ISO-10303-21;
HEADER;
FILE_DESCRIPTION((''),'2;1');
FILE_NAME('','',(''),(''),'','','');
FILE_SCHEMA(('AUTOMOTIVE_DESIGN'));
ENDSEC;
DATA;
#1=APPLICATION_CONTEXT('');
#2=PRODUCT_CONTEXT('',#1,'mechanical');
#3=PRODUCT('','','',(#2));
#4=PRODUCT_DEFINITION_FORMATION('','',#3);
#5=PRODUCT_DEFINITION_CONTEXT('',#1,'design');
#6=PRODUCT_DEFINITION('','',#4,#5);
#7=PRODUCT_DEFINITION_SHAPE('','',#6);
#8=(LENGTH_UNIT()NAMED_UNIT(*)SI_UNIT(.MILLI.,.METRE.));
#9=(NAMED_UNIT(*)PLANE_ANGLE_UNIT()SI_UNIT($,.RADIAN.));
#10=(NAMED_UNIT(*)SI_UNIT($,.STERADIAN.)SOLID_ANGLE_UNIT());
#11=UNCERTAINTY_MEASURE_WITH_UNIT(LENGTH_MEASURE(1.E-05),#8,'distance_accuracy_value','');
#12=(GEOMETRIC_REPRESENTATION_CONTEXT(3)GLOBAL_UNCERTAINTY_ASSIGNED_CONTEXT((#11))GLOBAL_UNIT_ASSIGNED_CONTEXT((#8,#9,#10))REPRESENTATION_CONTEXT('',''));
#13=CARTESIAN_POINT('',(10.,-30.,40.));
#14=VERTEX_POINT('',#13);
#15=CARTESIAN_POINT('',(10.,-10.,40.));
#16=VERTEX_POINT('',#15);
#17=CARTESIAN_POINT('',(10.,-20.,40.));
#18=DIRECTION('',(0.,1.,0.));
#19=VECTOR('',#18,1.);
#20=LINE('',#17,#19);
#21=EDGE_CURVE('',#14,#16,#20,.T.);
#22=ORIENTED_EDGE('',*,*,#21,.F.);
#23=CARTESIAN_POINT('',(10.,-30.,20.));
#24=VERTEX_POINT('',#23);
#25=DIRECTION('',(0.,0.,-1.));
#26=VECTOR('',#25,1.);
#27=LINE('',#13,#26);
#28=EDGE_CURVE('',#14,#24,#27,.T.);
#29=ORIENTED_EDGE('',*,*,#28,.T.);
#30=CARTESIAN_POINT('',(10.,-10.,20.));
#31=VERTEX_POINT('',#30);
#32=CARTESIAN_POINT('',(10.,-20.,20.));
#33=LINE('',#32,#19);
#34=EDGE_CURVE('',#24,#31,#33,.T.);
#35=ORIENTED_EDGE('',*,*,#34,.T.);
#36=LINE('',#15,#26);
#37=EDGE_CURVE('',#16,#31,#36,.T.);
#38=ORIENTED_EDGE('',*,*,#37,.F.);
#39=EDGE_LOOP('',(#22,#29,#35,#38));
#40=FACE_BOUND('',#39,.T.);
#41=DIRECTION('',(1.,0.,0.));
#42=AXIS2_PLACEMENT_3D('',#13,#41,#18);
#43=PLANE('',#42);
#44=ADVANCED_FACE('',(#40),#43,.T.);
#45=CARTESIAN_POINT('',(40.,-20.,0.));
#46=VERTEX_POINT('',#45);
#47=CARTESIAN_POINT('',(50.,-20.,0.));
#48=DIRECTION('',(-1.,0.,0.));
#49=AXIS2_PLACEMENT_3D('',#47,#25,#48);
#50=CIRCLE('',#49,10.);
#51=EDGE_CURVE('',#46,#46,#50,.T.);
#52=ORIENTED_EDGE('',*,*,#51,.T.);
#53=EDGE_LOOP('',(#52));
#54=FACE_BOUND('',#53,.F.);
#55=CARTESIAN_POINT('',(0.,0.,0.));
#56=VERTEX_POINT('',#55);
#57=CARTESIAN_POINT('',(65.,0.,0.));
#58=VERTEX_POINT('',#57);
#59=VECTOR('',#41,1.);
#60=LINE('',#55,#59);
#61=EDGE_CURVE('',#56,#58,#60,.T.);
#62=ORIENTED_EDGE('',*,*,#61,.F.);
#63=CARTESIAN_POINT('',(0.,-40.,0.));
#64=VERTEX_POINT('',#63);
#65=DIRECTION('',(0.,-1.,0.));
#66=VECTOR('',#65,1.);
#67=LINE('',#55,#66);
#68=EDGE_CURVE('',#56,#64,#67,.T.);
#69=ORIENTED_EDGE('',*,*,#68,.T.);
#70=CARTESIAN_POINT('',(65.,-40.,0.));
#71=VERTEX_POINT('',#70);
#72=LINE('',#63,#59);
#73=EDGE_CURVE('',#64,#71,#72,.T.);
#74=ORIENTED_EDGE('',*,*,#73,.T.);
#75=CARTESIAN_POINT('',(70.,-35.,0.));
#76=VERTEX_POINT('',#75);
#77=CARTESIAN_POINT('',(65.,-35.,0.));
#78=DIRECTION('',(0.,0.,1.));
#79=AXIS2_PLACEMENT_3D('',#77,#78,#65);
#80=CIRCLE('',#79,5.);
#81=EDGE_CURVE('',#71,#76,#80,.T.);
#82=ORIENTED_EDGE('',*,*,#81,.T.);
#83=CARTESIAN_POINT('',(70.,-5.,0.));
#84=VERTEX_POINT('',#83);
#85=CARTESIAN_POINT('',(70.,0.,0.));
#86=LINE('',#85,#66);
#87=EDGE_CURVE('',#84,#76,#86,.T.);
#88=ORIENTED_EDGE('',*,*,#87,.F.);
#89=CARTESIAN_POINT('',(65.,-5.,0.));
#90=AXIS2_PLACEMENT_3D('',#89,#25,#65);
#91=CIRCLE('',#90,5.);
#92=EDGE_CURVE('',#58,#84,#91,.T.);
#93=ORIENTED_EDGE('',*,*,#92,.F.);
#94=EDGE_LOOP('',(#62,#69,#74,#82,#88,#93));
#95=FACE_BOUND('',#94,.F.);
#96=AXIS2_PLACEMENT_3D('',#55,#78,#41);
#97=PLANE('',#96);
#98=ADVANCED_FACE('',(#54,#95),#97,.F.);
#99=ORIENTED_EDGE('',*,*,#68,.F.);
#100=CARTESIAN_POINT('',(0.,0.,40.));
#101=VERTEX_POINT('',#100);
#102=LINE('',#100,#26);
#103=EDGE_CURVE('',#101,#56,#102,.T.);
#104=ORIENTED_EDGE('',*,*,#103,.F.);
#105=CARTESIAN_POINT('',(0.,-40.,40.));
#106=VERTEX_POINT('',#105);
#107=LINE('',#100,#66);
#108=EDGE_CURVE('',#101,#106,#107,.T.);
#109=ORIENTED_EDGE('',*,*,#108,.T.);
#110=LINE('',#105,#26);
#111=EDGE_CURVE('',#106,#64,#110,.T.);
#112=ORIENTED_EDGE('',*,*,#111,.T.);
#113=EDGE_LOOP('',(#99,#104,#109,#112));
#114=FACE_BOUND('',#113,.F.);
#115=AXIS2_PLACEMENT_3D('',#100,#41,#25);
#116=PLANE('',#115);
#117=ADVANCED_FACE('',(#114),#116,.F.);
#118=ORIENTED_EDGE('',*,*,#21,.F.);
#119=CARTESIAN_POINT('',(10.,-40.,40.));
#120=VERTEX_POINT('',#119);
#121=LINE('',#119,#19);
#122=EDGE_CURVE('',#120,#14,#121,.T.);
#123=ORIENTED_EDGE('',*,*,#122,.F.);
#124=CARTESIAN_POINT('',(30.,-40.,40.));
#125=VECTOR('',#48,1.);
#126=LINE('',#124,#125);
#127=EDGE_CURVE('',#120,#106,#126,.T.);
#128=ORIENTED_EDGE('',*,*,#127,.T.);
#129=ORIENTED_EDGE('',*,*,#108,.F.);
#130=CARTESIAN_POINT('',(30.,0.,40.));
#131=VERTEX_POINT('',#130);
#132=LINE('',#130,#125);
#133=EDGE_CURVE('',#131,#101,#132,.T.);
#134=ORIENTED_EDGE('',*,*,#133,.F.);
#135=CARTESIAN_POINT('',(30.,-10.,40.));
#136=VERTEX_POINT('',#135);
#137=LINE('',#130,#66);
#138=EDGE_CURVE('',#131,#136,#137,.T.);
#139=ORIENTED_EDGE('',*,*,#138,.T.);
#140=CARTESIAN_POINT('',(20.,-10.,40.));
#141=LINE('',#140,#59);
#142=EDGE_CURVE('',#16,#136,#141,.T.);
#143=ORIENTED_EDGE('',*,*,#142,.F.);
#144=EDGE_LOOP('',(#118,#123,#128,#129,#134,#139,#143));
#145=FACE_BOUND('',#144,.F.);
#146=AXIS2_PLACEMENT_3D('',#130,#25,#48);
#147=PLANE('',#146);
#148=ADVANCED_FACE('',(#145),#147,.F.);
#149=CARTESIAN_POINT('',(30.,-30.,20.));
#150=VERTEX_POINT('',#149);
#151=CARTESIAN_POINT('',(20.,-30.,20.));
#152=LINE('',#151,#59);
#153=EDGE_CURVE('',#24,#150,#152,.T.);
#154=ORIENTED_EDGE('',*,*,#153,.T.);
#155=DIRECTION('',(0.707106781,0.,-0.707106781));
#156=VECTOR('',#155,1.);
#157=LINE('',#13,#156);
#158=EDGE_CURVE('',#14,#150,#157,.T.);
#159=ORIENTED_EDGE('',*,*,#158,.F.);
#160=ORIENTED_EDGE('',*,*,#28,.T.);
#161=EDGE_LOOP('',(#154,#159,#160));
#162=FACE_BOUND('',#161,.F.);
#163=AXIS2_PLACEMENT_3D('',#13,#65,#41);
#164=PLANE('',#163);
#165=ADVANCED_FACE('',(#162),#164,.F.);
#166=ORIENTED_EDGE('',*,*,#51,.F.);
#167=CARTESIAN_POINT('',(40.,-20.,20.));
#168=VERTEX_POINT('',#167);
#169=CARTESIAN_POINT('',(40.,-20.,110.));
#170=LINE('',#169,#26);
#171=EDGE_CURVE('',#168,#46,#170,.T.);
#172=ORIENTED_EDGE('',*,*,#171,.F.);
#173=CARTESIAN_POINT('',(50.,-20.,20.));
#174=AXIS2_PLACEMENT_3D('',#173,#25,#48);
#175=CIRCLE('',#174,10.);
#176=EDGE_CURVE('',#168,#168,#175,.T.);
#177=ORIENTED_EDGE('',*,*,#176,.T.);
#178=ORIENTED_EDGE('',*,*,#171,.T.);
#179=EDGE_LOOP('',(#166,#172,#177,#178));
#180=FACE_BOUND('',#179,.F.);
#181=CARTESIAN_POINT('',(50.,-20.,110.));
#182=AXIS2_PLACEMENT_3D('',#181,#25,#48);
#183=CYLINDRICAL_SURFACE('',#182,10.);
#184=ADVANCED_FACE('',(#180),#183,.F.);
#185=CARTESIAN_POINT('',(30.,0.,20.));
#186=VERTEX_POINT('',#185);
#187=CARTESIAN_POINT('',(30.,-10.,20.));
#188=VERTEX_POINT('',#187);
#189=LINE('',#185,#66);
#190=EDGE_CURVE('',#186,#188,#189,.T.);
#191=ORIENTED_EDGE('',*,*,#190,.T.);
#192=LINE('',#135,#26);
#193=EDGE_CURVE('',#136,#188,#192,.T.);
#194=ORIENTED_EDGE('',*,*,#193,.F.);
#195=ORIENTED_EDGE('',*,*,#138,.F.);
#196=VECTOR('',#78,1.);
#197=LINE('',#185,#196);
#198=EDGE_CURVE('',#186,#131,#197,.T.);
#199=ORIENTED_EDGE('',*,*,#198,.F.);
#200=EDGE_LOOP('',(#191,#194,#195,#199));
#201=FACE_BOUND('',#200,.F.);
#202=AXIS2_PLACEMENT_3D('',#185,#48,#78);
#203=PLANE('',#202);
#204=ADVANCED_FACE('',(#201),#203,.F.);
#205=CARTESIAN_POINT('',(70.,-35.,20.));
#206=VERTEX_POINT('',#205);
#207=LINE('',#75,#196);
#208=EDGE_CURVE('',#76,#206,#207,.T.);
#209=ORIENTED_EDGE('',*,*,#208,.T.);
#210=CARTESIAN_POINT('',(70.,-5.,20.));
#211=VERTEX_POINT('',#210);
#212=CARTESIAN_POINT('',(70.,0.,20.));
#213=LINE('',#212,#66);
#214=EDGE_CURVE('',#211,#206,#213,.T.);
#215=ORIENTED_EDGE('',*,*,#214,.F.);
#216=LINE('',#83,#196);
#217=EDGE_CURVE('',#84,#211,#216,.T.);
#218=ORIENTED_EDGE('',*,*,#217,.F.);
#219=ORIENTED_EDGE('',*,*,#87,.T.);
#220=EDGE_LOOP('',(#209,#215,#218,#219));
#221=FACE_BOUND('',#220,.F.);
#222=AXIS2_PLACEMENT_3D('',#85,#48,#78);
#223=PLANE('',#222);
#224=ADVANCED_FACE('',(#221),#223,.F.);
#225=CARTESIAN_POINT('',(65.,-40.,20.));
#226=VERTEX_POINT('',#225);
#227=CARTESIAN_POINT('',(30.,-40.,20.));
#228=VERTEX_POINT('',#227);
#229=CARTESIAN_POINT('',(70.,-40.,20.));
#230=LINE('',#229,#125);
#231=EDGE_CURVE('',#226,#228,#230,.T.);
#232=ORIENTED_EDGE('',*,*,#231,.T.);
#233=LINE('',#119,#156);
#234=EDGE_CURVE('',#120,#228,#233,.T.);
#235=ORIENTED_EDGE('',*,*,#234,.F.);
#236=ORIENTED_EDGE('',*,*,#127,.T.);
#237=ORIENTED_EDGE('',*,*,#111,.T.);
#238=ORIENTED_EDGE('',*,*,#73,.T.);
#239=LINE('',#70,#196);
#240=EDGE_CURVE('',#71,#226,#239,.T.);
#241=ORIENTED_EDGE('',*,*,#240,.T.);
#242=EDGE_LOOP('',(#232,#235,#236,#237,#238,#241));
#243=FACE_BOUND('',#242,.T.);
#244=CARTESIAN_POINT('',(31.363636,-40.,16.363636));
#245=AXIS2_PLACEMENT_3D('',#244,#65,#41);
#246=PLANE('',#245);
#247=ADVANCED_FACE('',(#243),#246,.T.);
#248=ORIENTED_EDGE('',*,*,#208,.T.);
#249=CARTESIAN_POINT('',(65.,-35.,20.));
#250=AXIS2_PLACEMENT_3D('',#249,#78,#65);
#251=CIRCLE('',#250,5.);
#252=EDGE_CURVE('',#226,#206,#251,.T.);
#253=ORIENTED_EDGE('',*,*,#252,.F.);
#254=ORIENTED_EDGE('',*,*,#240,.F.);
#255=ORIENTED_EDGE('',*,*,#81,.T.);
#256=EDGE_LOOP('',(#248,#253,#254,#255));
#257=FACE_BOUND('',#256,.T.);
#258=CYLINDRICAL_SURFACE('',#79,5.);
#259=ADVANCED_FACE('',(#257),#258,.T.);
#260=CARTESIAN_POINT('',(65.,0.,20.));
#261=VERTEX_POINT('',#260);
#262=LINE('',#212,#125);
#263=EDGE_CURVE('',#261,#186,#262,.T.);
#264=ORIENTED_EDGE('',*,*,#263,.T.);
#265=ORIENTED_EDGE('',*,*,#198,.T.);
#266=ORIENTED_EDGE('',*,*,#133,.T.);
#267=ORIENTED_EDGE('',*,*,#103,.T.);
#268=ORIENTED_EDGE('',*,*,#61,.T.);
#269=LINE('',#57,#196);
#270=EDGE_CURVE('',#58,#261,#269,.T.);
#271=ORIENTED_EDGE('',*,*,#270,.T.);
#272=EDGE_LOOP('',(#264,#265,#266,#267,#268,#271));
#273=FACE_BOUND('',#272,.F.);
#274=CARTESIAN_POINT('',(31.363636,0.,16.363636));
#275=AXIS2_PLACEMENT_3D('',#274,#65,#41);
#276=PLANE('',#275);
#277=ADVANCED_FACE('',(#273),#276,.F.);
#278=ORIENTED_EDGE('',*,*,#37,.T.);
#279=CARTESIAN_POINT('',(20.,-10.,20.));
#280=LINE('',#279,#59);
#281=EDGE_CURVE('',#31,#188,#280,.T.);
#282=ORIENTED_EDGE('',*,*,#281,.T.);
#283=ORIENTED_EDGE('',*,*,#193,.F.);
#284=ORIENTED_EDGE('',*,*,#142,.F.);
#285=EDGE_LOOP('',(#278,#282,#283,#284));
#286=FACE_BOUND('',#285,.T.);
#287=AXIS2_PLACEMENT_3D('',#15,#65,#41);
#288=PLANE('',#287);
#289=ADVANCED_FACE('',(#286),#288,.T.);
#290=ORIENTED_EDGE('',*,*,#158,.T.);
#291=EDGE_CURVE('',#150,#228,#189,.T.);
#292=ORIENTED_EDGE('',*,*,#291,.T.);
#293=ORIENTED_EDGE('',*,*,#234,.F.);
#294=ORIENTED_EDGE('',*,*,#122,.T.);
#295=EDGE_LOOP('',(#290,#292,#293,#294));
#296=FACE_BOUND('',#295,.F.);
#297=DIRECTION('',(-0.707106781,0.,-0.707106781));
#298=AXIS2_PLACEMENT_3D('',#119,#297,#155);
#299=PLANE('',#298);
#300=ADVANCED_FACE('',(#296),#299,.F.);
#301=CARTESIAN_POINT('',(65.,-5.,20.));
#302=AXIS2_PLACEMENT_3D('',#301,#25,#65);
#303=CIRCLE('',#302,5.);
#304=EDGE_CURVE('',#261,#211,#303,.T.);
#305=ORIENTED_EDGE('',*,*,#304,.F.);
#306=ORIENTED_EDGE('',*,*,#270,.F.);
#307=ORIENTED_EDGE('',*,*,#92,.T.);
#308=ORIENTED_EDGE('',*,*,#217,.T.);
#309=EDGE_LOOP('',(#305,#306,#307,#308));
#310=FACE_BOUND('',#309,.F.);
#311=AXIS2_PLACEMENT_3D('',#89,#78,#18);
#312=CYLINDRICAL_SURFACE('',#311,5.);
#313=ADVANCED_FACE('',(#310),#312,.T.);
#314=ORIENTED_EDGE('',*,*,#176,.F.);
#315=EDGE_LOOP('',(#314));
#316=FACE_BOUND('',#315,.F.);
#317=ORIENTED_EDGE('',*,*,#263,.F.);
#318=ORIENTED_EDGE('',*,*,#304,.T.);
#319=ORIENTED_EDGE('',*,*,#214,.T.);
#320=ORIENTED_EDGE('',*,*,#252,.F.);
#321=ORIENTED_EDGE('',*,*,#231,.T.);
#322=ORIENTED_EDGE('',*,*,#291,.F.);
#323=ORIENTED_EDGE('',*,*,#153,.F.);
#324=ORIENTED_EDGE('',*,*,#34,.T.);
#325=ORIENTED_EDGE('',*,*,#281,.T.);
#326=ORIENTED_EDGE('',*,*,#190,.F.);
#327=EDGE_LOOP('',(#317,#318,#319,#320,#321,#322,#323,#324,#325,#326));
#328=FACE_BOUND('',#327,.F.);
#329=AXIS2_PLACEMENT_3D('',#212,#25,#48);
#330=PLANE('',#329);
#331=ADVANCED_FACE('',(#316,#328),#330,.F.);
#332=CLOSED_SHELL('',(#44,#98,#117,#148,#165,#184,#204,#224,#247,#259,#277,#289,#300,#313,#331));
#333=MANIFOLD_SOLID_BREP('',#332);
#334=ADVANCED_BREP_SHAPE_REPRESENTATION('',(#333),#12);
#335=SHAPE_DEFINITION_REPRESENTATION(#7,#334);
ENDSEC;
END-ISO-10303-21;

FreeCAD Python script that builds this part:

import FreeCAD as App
import Part
import Sketcher
Q = App.Units.Quantity


def edges_at(feature, points):
    """Names of the edges that pass closest to the given points."""
    edges = feature.Shape.Edges
    near = lambda p: min(range(len(edges)), key=lambda i: edges[i].distToShape(Part.Vertex(*p))[0])
    return sorted({f"Edge{near(p) + 1}" for p in points})


def add_polygon(sketch, points):
    """Adds a closed chain of lines whose ends are joined by coincident constraints."""
    first, n = sketch.GeometryCount, len(points)
    for a, b in zip(points, points[1:] + points[:1]):
        sketch.addGeometry(Part.LineSegment(App.Vector(*a, 0), App.Vector(*b, 0)), False)
    for i in range(n):
        sketch.addConstraint(Sketcher.Constraint("Coincident", first + i, 2, first + (i + 1) % n, 1))

doc = App.newDocument("Part")
body = doc.addObject("PartDesign::Body", "Body")

# Sketch on XZ plane
sketch1 = body.newObject("Sketcher::SketchObject", "Sketch")
sketch1.AttachmentSupport = (doc.getObject("XZ_Plane"), [""])
sketch1.MapMode = "FlatFace"
add_polygon(sketch1, [(0, 40), (0, 0), (70, 0), (70, 20), (30, 20), (30, 40)])  # lines 0-5
sketch1.addConstraint(Sketcher.Constraint("Vertical", 0))
sketch1.addConstraint(Sketcher.Constraint("Horizontal", 1))
sketch1.addConstraint(Sketcher.Constraint("Vertical", 2))
sketch1.addConstraint(Sketcher.Constraint("Horizontal", 3))
sketch1.addConstraint(Sketcher.Constraint("Vertical", 4))
sketch1.addConstraint(Sketcher.Constraint("Horizontal", 5))
sketch1.addConstraint(Sketcher.Constraint("Coincident", 0, 2, -1, 1))
sketch1.addConstraint(Sketcher.Constraint("Equal", 3, 0))
sketch1.addConstraint(Sketcher.Constraint("Equal", 2, 4))
sketch1.addConstraint(Sketcher.Constraint("DistanceX", 1, 1, 1, 2, Q("70 mm")))
sketch1.addConstraint(Sketcher.Constraint("DistanceX", 3, 2, 3, 1, Q("40 mm")))
pad1 = body.newObject("PartDesign::Pad", "Pad")
pad1.Profile = sketch1
pad1.Length = 40

# Sketch on XY plane
sketch2 = body.newObject("Sketcher::SketchObject", "Sketch001")
sketch2.AttachmentSupport = (doc.getObject("XY_Plane"), [""])
sketch2.MapMode = "FlatFace"
sketch2.AttachmentOffset = App.Placement(App.Vector(0, 0, 40), App.Rotation())
add_polygon(sketch2, [(10, -10), (10, -30), (30, -30), (30, -10)])  # lines 0-3
sketch2.addConstraint(Sketcher.Constraint("Vertical", 0))
sketch2.addConstraint(Sketcher.Constraint("Horizontal", 1))
sketch2.addConstraint(Sketcher.Constraint("Vertical", 2))
sketch2.addConstraint(Sketcher.Constraint("Horizontal", 3))
sketch2.addConstraint(Sketcher.Constraint("Equal", 3, 0))
sketch2.addConstraint(Sketcher.Constraint("DistanceX", 1, 1, 1, 2, Q("20 mm")))
sketch2.addConstraint(Sketcher.Constraint("DistanceX", -1, 1, 0, 2, Q("10 mm")))
sketch2.addConstraint(Sketcher.Constraint("DistanceY", 0, 2, -1, 1, Q("30 mm")))
pocket1 = body.newObject("PartDesign::Pocket", "Pocket")
pocket1.Profile = sketch2
pocket1.Length = 20

# Sketch on XZ plane
sketch3 = body.newObject("Sketcher::SketchObject", "Sketch002")
sketch3.AttachmentSupport = (doc.getObject("XZ_Plane"), [""])
sketch3.MapMode = "FlatFace"
sketch3.AttachmentOffset = App.Placement(App.Vector(0, 0, 40), App.Rotation())
add_polygon(sketch3, [(10, 40), (30, 20), (30, 40)])  # lines 0-2
sketch3.addConstraint(Sketcher.Constraint("Vertical", 1))
sketch3.addConstraint(Sketcher.Constraint("Horizontal", 2))
sketch3.addConstraint(Sketcher.Constraint("Equal", 2, 1))
sketch3.addConstraint(Sketcher.Constraint("DistanceX", 2, 2, 2, 1, Q("20 mm")))
sketch3.addConstraint(Sketcher.Constraint("DistanceX", -1, 1, 0, 2, Q("30 mm")))
sketch3.addConstraint(Sketcher.Constraint("DistanceY", -1, 1, 0, 2, Q("20 mm")))
pocket2 = body.newObject("PartDesign::Pocket", "Pocket001")
pocket2.Profile = sketch3
pocket2.Length = 10

# Sketch on XY plane
sketch4 = body.newObject("Sketcher::SketchObject", "Sketch003")
sketch4.AttachmentSupport = (doc.getObject("XY_Plane"), [""])
sketch4.MapMode = "FlatFace"
sketch4.AttachmentOffset = App.Placement(App.Vector(0, 0, 20), App.Rotation())
sketch4.addGeometry(Part.Circle(App.Vector(50, -20, 0), App.Vector(0, 0, 1), 10), False)
sketch4.addConstraint(Sketcher.Constraint("Diameter", 0, Q("20 mm")))
sketch4.addConstraint(Sketcher.Constraint("DistanceX", -1, 1, 0, 3, Q("50 mm")))
sketch4.addConstraint(Sketcher.Constraint("DistanceY", 0, 3, -1, 1, Q("20 mm")))
doc.recompute()
hole = body.newObject("PartDesign::Hole", "Hole")
hole.Profile = sketch4
hole.ThreadType = "None"
hole.Diameter = 20
hole.DepthType = "ThroughAll"
doc.recompute()

fillet = body.newObject("PartDesign::Fillet", "Fillet")
fillet.Base = (hole, edges_at(hole, [(70, -40, 10), (70, 0, 10)]))
fillet.Radius = 5

doc.recompute()
